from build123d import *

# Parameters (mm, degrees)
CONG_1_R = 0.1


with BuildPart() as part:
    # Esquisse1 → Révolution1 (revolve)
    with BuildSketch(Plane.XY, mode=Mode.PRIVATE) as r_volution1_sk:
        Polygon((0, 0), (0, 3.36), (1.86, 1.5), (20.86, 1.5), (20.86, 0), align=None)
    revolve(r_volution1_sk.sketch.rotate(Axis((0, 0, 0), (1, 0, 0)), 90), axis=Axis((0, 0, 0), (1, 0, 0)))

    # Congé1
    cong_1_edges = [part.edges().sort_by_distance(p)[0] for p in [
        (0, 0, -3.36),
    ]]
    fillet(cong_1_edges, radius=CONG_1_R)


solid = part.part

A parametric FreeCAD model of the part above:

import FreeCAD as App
import Part
import Sketcher
Q = App.Units.Quantity


def edges_at(feature, points):
    """Names of the edges that pass closest to the given points."""
    edges = feature.Shape.Edges
    near = lambda p: min(range(len(edges)), key=lambda i: edges[i].distToShape(Part.Vertex(*p))[0])
    return sorted({f"Edge{near(p) + 1}" for p in points})


def add_polygon(sketch, points):
    """Adds a closed chain of lines whose ends are joined by coincident constraints."""
    first, n = sketch.GeometryCount, len(points)
    for a, b in zip(points, points[1:] + points[:1]):
        sketch.addGeometry(Part.LineSegment(App.Vector(*a, 0), App.Vector(*b, 0)), False)
    for i in range(n):
        sketch.addConstraint(Sketcher.Constraint("Coincident", first + i, 2, first + (i + 1) % n, 1))

doc = App.newDocument("Part")
body = doc.addObject("PartDesign::Body", "Body")

# Sketch on XY plane
sketch1 = body.newObject("Sketcher::SketchObject", "Sketch")
sketch1.AttachmentSupport = (doc.getObject("XY_Plane"), [""])
sketch1.MapMode = "FlatFace"
add_polygon(sketch1, [(0, 3.4), (0, 0), (20.9, 0), (20.9, 1.5), (1.9, 1.5)])  # lines 0-4
sketch1.addConstraint([
    Sketcher.Constraint("Vertical", 0),
    Sketcher.Constraint("Horizontal", 1),
    Sketcher.Constraint("Vertical", 2),
    Sketcher.Constraint("Horizontal", 3),
    Sketcher.Constraint("Coincident", 0, 2, -1, 1),
    Sketcher.Constraint("DistanceX", 3, 2, 3, 1, Q("19 mm")),
    Sketcher.Constraint("Angle", 4, Q("135 deg")),
    Sketcher.Constraint("DistanceY", 2, 1, 2, 2, Q("1.5 mm")),
    Sketcher.Constraint("DistanceX", 1, 1, 1, 2, Q("20.86 mm")),
])
revolution = body.newObject("PartDesign::Revolution", "Revolution")
revolution.Profile = sketch1
revolution.ReferenceAxis = (sketch1, ["H_Axis"])
revolution.Angle = 360
doc.recompute()

fillet = body.newObject("PartDesign::Fillet", "Fillet")
fillet.Base = (revolution, edges_at(revolution, [(0, 0, -3.36)]))
fillet.Radius = 0.1

doc.recompute()
